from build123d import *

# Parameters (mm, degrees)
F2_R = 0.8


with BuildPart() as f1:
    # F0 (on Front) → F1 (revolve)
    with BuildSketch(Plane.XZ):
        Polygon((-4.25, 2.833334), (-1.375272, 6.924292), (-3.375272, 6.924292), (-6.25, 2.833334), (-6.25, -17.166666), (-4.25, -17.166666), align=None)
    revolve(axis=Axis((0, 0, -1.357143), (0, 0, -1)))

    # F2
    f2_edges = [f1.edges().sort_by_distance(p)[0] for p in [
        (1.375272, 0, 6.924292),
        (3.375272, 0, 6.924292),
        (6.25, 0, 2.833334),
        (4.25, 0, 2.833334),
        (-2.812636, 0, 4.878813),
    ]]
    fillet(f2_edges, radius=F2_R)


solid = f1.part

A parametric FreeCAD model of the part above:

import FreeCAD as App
import Part
import Sketcher

V = App.Vector
Q = App.Units.Quantity


def edges_at(feature, points):
    """Names of the edges that pass closest to the given points."""
    edges = feature.Shape.Edges
    near = lambda p: min(range(len(edges)), key=lambda i: edges[i].distToShape(Part.Vertex(*p))[0])
    return sorted({f"Edge{near(p) + 1}" for p in points})


def add_polygon(sketch, points):
    """Adds a closed chain of lines whose ends are joined by coincident constraints."""
    first, n = sketch.GeometryCount, len(points)
    for a, b in zip(points, points[1:] + points[:1]):
        sketch.addGeometry(Part.LineSegment(App.Vector(*a, 0), App.Vector(*b, 0)), False)
    for i in range(n):
        sketch.addConstraint(Sketcher.Constraint("Coincident", first + i, 2, first + (i + 1) % n, 1))

doc = App.newDocument("Part")
body = doc.addObject("PartDesign::Body", "Body")

# Sketch on XZ plane
sketch1 = doc.addObject("Sketcher::SketchObject", "Sketch")
body.addObject(sketch1)
sketch1.AttachmentSupport = (doc.XZ_Plane, [""])
sketch1.MapMode = "FlatFace"
add_polygon(sketch1, [(-4.2, 2.8), (-1.4, 6.9), (-3.4, 6.9), (-6.2, 2.8), (-6.2, -17.2), (-4.2, -17.2)])  # lines 0-5
sketch1.addConstraint(Sketcher.Constraint("Horizontal", 1))
sketch1.addConstraint(Sketcher.Constraint("Vertical", 3))
sketch1.addConstraint(Sketcher.Constraint("Horizontal", 4))
sketch1.addConstraint(Sketcher.Constraint("Vertical", 5))
sketch1.addConstraint(Sketcher.Constraint("Parallel", 0, 2))
sketch1.addConstraint(Sketcher.Constraint("Horizontal", 2, 2, 5, 2))
sketch1.addConstraint(Sketcher.Constraint("DistanceX", 1, 2, 1, 1, Q("2 mm")))
sketch1.addConstraint(Sketcher.Constraint("DistanceY", 3, 2, 3, 1, Q("20 mm")))
sketch1.addConstraint(Sketcher.Constraint("Distance", 0, Q("5 mm")))
sketch1.addConstraint(Sketcher.Constraint("DistanceX", 2, 2, -1, 1, Q("6.25 mm")))
sketch1.addConstraint(Sketcher.Constraint("DistanceX", 1, 2, -1, 1, Q("3.375272 mm")))
sketch1.addConstraint(Sketcher.Constraint("DistanceY", -1, 1, 0, 2, Q("6.924292 mm")))
revolution = doc.addObject("PartDesign::Revolution", "Revolution")
body.addObject(revolution)
revolution.Profile = sketch1
revolution.ReferenceAxis = (sketch1, ["V_Axis"])
revolution.Angle = 360
doc.recompute()

fillet = doc.addObject("PartDesign::Fillet", "Fillet")
body.addObject(fillet)
fillet.Base = (revolution, edges_at(revolution, [
    (1.375, 0, 6.924),
    (3.375, 0, 6.924),
    (6.25, 0, 2.833),
    (4.25, 0, 2.833),
    (-2.813, 0, 4.879),
]))
fillet.Radius = 0.8

doc.recompute()
